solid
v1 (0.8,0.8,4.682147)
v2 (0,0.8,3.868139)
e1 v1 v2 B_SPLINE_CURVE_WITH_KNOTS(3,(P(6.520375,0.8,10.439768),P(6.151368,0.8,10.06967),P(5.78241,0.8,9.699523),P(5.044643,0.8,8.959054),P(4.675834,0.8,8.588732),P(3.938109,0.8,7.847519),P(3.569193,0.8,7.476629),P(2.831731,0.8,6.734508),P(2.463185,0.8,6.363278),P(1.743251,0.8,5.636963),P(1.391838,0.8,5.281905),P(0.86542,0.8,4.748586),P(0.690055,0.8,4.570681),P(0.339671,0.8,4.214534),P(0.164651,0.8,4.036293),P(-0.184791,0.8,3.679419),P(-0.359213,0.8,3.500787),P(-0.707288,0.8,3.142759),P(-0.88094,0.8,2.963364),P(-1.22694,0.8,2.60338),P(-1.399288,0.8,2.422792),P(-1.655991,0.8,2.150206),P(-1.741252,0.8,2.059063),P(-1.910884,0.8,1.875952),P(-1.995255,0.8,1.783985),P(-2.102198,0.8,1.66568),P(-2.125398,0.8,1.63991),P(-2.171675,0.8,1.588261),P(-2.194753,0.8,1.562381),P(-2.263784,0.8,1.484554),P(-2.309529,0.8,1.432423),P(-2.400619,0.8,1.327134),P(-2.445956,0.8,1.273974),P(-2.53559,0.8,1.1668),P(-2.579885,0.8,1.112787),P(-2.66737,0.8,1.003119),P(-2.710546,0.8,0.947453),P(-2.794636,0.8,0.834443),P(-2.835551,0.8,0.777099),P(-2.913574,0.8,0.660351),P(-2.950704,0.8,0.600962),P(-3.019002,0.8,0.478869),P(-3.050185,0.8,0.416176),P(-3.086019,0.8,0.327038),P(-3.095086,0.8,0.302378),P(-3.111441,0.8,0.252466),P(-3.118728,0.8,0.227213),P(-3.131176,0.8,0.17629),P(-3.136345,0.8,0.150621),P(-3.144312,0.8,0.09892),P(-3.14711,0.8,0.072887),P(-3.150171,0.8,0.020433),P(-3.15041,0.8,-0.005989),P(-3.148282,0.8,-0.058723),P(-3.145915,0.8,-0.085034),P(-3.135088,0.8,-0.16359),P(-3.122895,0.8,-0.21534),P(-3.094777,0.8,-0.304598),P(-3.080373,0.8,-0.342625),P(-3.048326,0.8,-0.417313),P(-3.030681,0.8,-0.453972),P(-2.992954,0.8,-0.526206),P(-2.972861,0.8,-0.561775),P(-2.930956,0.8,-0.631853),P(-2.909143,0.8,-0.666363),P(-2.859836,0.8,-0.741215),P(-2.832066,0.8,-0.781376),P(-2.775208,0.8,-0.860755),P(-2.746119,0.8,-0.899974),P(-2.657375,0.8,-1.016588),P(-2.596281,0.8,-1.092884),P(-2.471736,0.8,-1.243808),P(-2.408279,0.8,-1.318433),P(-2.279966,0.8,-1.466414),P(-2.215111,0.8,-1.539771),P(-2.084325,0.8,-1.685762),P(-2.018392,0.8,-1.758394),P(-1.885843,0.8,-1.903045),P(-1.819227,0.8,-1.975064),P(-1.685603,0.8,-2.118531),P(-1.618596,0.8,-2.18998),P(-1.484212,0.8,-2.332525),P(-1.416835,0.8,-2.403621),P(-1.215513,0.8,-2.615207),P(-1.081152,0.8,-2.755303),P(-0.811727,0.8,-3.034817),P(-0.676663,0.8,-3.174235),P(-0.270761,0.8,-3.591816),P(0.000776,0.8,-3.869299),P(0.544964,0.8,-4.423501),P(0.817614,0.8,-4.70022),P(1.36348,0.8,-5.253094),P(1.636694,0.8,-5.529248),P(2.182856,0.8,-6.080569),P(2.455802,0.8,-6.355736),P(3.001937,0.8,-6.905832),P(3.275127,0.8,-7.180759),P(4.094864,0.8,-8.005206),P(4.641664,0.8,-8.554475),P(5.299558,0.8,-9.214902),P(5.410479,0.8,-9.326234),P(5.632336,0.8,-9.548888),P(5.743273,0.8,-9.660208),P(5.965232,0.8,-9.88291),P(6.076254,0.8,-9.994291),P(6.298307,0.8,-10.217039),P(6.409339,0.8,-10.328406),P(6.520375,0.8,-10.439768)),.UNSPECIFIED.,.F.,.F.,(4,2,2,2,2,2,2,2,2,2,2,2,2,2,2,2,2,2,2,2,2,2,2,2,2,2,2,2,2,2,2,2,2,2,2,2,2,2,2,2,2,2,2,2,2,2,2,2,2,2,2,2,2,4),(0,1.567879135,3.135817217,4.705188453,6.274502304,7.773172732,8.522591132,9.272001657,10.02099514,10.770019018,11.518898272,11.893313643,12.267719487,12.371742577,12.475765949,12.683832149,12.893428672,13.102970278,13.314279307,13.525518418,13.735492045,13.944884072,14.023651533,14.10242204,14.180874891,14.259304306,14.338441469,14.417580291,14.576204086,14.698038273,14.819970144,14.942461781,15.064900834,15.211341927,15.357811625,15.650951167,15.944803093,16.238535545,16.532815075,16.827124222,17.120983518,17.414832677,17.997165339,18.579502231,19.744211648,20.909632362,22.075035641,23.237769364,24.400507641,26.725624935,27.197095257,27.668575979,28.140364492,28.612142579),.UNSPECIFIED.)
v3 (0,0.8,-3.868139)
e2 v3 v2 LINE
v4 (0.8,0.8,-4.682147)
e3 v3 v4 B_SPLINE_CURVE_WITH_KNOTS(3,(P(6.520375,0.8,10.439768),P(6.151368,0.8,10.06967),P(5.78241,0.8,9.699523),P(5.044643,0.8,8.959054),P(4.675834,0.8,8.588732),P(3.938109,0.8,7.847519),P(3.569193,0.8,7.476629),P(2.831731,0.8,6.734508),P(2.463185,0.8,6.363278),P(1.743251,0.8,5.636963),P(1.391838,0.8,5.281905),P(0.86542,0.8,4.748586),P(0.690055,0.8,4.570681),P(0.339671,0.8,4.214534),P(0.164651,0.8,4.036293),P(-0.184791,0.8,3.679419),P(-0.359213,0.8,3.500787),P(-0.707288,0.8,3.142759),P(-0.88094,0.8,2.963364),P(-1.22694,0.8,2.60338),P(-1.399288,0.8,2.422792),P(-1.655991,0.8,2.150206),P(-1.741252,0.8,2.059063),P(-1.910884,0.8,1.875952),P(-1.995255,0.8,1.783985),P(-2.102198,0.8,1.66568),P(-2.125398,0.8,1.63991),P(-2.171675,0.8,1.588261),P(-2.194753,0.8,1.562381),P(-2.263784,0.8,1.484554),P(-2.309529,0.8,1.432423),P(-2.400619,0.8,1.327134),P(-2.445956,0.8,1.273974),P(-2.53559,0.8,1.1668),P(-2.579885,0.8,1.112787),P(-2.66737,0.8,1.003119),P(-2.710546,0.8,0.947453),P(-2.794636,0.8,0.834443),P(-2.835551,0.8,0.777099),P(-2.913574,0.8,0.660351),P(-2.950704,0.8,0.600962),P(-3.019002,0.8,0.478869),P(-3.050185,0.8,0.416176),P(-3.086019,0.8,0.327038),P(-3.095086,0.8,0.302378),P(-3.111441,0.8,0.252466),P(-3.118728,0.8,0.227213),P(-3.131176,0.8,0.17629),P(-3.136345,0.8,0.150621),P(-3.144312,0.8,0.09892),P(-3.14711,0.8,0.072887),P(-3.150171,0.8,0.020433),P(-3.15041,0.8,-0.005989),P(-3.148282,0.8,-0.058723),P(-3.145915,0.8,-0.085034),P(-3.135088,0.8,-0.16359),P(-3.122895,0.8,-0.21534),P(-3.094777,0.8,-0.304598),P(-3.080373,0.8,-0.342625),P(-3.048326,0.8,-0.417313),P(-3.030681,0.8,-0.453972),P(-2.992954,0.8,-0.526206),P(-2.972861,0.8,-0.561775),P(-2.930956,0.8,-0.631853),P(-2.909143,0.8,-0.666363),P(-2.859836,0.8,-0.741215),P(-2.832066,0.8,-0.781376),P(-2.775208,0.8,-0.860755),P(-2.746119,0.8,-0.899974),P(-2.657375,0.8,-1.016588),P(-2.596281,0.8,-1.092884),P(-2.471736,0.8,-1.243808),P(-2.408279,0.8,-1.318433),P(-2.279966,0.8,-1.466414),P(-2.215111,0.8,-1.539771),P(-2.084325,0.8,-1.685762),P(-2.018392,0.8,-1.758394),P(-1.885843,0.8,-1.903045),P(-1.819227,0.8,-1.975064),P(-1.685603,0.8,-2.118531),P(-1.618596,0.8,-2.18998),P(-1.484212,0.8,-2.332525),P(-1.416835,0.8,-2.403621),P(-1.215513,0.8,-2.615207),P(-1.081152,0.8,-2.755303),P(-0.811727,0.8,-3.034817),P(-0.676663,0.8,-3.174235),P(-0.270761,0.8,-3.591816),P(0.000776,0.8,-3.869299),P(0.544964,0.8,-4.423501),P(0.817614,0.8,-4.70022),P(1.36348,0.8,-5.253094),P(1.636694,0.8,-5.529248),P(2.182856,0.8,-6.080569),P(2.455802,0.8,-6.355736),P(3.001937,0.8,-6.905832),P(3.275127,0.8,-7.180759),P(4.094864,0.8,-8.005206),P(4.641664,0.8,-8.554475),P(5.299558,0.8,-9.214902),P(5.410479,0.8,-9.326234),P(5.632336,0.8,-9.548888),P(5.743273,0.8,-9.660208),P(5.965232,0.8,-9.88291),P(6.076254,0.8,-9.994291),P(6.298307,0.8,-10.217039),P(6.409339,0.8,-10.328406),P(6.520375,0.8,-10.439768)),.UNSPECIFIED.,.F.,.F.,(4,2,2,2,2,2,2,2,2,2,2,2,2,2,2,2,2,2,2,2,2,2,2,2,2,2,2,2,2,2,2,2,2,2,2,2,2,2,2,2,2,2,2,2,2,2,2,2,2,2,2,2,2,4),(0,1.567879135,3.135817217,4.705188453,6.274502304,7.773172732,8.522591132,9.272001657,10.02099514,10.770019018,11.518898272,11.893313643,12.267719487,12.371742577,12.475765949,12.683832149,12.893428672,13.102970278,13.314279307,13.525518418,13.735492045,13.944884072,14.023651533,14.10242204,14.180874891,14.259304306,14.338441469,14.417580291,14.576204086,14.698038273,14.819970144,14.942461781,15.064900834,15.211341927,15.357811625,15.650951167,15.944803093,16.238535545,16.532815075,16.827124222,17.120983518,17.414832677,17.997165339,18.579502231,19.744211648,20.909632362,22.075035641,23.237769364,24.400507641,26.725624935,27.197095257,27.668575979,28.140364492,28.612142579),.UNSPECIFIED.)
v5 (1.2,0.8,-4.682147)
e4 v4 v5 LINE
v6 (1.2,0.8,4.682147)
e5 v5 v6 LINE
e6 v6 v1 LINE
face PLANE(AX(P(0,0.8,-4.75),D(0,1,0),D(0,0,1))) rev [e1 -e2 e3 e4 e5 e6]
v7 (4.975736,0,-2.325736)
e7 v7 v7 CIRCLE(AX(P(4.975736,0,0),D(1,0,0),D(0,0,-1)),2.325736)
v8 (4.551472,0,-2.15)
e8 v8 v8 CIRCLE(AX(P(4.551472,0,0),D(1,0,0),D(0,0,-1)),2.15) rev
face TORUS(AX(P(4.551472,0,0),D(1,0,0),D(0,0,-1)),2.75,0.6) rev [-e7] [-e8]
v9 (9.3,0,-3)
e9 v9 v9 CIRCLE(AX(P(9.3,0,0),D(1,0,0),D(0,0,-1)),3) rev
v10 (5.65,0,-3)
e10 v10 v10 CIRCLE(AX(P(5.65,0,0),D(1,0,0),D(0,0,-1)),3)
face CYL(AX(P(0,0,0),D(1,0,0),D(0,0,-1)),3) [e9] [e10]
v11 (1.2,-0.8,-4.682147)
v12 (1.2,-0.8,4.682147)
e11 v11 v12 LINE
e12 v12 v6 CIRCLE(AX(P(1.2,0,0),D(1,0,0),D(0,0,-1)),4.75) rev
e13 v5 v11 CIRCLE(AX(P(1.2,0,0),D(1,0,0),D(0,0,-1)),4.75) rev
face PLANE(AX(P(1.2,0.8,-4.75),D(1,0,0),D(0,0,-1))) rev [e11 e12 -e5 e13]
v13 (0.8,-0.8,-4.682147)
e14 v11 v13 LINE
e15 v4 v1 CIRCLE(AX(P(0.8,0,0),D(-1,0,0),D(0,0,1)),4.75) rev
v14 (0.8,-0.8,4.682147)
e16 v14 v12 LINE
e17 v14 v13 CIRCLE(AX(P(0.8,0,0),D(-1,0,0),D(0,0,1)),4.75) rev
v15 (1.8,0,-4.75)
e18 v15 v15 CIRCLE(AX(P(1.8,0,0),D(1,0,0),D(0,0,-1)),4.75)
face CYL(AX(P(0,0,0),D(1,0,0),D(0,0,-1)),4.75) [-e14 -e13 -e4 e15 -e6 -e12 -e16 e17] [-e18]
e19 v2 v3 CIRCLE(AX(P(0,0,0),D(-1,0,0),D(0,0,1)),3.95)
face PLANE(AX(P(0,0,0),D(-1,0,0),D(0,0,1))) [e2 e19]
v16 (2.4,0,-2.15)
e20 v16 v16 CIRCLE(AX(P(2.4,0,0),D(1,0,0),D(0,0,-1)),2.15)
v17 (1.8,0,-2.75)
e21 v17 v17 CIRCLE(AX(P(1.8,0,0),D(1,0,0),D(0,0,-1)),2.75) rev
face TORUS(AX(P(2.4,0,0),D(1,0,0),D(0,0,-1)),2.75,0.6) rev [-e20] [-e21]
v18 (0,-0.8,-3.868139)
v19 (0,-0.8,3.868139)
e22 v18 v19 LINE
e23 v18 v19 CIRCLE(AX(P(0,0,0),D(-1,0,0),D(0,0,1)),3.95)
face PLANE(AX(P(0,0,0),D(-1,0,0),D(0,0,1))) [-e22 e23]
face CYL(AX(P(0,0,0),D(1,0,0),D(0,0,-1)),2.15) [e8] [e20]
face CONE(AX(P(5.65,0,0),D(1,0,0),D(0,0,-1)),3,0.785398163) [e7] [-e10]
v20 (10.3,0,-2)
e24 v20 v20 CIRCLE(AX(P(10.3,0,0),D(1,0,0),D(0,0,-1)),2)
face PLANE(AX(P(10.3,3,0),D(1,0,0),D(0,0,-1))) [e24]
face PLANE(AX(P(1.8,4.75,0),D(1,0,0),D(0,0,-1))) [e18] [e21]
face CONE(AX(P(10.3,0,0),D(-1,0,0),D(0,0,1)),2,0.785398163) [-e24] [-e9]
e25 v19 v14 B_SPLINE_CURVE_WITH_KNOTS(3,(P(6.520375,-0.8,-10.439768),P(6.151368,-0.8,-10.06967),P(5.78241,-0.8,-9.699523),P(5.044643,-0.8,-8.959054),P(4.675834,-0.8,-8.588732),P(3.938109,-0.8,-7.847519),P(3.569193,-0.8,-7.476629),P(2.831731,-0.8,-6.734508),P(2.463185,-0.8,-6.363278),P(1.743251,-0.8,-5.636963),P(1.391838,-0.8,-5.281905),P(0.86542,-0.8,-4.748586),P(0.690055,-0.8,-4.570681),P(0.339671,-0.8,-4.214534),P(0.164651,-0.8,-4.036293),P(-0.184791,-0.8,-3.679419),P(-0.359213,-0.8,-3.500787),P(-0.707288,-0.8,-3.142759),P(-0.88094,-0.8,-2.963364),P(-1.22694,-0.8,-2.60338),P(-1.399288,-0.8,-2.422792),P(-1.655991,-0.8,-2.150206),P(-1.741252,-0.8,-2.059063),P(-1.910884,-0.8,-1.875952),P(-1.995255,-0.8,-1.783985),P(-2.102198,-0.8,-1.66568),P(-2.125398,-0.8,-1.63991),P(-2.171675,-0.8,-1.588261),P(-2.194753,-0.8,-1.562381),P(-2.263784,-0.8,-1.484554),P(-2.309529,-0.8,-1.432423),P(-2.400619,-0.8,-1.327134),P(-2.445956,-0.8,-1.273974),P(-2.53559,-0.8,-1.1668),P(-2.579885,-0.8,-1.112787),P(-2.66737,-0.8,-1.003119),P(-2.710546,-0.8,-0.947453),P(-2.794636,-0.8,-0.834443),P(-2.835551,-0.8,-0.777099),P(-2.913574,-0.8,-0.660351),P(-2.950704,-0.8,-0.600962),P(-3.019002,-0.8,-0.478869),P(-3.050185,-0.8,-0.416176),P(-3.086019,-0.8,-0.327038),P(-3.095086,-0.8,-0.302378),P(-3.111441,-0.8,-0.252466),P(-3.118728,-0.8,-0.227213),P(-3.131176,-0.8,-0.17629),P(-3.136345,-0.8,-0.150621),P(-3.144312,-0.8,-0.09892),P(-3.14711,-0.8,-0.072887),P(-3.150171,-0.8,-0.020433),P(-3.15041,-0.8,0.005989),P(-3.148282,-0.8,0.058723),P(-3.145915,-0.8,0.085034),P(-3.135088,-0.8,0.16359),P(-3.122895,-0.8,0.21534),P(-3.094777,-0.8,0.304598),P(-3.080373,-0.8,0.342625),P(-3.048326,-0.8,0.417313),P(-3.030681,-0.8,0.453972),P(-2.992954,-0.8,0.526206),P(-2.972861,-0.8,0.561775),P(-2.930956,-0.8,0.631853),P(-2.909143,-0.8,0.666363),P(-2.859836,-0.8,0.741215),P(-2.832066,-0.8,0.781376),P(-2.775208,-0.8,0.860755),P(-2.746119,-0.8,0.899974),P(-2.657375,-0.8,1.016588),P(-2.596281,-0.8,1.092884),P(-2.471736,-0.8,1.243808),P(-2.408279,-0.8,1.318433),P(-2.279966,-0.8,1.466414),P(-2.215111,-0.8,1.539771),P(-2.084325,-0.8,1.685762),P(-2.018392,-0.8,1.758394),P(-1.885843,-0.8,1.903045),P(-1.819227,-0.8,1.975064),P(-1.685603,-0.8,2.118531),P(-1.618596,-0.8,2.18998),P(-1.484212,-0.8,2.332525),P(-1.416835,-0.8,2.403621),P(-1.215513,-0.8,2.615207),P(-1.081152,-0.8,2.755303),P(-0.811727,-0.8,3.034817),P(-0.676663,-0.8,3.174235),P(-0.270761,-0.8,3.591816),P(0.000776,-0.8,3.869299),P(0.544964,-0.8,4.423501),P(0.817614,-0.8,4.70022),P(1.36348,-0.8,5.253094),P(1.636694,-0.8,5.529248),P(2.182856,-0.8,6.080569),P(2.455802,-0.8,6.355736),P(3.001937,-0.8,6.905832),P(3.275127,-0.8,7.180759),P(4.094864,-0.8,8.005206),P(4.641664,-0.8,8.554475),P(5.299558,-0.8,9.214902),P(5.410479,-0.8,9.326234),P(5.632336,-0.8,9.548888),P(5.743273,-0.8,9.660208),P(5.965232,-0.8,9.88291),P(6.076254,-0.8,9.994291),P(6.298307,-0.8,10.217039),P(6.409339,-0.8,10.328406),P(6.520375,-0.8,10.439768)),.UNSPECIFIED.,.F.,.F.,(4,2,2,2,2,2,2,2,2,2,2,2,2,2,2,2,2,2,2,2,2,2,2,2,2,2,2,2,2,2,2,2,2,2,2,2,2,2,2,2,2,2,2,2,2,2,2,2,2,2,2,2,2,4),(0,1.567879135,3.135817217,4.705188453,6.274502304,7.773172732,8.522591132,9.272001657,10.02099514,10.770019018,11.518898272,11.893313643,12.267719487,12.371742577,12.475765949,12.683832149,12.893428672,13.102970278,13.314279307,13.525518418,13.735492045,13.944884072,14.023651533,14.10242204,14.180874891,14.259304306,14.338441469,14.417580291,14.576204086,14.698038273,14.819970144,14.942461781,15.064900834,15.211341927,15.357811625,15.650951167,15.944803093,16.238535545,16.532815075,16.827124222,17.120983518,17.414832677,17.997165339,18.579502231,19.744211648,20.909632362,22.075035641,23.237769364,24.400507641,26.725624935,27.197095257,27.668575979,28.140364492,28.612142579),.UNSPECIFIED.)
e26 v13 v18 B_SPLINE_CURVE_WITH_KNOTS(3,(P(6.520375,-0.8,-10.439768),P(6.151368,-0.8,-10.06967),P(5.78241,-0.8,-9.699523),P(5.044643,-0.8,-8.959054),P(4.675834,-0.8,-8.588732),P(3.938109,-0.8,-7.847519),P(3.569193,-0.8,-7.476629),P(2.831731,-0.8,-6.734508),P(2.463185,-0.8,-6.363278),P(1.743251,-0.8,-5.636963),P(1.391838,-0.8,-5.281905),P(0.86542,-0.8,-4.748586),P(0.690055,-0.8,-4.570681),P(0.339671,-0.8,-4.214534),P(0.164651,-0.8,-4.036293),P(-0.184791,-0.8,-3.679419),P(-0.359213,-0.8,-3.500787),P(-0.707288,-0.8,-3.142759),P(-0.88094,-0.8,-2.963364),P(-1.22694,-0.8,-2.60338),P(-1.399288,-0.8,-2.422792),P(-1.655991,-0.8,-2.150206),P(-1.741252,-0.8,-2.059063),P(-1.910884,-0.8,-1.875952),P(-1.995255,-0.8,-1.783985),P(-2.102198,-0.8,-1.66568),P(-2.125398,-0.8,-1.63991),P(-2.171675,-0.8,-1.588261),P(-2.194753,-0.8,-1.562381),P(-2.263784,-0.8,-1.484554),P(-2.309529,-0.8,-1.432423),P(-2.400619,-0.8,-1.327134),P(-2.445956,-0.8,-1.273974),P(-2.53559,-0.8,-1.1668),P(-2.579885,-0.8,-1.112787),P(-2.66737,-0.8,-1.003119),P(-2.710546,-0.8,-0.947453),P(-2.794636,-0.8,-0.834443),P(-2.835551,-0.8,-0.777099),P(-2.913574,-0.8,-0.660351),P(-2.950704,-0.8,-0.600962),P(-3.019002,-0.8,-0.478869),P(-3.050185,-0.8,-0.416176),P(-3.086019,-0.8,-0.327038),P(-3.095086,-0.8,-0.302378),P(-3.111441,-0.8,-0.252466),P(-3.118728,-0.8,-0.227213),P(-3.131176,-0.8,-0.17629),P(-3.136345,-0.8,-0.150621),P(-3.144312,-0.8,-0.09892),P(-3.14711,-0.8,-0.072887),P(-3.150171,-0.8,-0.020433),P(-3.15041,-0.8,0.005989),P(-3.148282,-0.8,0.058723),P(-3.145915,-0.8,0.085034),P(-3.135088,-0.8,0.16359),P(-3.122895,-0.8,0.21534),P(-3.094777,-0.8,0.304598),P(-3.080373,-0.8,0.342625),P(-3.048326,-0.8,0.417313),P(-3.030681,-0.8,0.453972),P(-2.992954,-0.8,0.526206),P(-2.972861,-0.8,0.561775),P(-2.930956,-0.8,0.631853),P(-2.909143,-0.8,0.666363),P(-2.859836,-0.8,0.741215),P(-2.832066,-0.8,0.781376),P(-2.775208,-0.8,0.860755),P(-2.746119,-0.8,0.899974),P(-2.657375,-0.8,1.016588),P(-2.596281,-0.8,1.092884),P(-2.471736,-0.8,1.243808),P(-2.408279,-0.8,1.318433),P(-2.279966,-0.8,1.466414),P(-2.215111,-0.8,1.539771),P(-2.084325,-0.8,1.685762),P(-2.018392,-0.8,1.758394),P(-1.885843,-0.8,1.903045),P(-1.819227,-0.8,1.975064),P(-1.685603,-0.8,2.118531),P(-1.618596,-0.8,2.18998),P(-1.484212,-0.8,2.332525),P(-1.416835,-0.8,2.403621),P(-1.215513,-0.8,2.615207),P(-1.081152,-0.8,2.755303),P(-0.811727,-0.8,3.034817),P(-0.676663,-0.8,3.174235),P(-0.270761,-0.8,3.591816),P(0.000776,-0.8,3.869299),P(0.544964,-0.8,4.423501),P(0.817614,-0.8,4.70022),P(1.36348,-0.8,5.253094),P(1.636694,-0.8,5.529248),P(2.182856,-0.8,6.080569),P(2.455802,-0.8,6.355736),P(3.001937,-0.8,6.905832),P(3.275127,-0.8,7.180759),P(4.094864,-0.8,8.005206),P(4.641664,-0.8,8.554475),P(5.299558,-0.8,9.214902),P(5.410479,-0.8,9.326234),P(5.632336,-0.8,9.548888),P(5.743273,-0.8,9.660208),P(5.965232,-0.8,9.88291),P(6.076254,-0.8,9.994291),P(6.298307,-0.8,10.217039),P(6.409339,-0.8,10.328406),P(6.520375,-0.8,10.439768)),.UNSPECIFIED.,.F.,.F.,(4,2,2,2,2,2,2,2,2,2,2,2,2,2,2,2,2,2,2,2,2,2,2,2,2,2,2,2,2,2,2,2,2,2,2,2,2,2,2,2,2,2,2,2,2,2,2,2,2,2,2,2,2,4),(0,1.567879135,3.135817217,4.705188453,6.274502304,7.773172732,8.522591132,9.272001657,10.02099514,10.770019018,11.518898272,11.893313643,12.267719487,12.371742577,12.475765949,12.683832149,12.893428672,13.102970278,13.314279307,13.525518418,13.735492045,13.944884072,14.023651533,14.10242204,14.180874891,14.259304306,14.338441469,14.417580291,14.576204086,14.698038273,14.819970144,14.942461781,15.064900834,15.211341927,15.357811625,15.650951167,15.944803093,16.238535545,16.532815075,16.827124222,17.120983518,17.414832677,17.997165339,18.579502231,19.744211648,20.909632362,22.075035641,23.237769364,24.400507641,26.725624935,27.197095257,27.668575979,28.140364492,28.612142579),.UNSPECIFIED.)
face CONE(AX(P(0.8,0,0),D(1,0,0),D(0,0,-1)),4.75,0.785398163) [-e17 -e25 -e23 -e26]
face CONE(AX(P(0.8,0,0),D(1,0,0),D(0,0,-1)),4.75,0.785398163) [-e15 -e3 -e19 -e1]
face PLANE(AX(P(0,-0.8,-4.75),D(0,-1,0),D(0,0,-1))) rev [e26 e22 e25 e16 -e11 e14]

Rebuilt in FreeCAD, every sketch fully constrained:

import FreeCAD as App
import Part
import Sketcher
from FreeCAD import Vector
Q = App.Units.Quantity


def edges_at(feature, points):
    """Names of the edges that pass closest to the given points."""
    edges = feature.Shape.Edges
    near = lambda p: min(range(len(edges)), key=lambda i: edges[i].distToShape(Part.Vertex(*p))[0])
    return sorted({f"Edge{near(p) + 1}" for p in points})

doc = App.newDocument("Part")
params = doc.addObject("Spreadsheet::Sheet", "Params")
for row, (alias, value) in enumerate([
    ("sketch1_width", "3 mm"),
    ("sketch1_width2", "10.3 mm"),
    ("sketch1_width3", "1.8 mm"),
    ("sketch1_height", "2.6 mm"),
    ("sketch1_width4", "4.65 mm"),
    ("revolution_angle", "360 deg"),
    ("chamfer_size", "1 mm"),
    ("fillet_radius", "0.6 mm"),
    ("chamfer2_size", "0.8 mm"),
    ("sketch2_width", "1.2 mm"),
    ("sketch2_height", "1.6 mm"),
], start=1):
    params.set(f"A{row}", alias)
    params.set(f"B{row}", "=" + value)
    params.setAlias(f"B{row}", alias)

body = doc.addObject("PartDesign::Body", "Body")

sketch1 = body.newObject("Sketcher::SketchObject", "Sketch")
sketch1.AttachmentSupport = (doc.getObject("XY_Plane"), [""])
sketch1.MapMode = "FlatFace"
sketch1.addGeometry([
    Part.LineSegment(Vector(0, 4.8, 0), Vector(0, 0, 0)),
    Part.LineSegment(Vector(0, 0, 0), Vector(10.3, 0, 0)),
    Part.LineSegment(Vector(10.3, 0, 0), Vector(10.3, 3, 0)),
    Part.LineSegment(Vector(10.3, 3, 0), Vector(5.7, 3, 0)),
    Part.LineSegment(Vector(5.7, 3, 0), Vector(4.8, 2.1, 0)),
    Part.LineSegment(Vector(4.8, 2.1, 0), Vector(1.8, 2.1, 0)),
    Part.LineSegment(Vector(1.8, 2.1, 0), Vector(1.8, 4.8, 0)),
    Part.LineSegment(Vector(1.8, 4.8, 0), Vector(0, 4.8, 0)),
], False)
sketch1.addConstraint([
    Sketcher.Constraint("Coincident", 0, 2, 1, 1),
    Sketcher.Constraint("Coincident", 1, 2, 2, 1),
    Sketcher.Constraint("Coincident", 2, 2, 3, 1),
    Sketcher.Constraint("Coincident", 3, 2, 4, 1),
    Sketcher.Constraint("Coincident", 4, 2, 5, 1),
    Sketcher.Constraint("Coincident", 5, 2, 6, 1),
    Sketcher.Constraint("Coincident", 6, 2, 7, 1),
    Sketcher.Constraint("Coincident", 7, 2, 0, 1),
    Sketcher.Constraint("Vertical", 0),
    Sketcher.Constraint("Horizontal", 1),
    Sketcher.Constraint("Vertical", 2),
    Sketcher.Constraint("Horizontal", 3),
    Sketcher.Constraint("Horizontal", 5),
    Sketcher.Constraint("Vertical", 6),
    Sketcher.Constraint("Horizontal", 7),
    Sketcher.Constraint("Coincident", 0, 2, -1, 1),
    Sketcher.Constraint("Equal", 5, 2),
    Sketcher.Constraint("DistanceX", 5, 2, 5, 1, 3.0),
    Sketcher.Constraint("Angle", 4, Q("-135 deg")),
    Sketcher.Constraint("DistanceX", 1, 1, 1, 2, 10.3),
    Sketcher.Constraint("DistanceX", 7, 2, 7, 1, 1.8),
    Sketcher.Constraint("DistanceY", 6, 1, 6, 2, 2.6),
    Sketcher.Constraint("DistanceX", 3, 2, 3, 1, 4.65),
])
sketch1.setExpression("Constraints[17]", "Params.sketch1_width")
sketch1.setExpression("Constraints[19]", "Params.sketch1_width2")
sketch1.setExpression("Constraints[20]", "Params.sketch1_width3")
sketch1.setExpression("Constraints[21]", "Params.sketch1_height")
sketch1.setExpression("Constraints[22]", "Params.sketch1_width4")
revolution = body.newObject("PartDesign::Revolution", "Revolution")
revolution.Profile = sketch1
revolution.ReferenceAxis = (sketch1, ["H_Axis"])
revolution.setExpression("Angle", "Params.revolution_angle")
doc.recompute()

chamfer = body.newObject("PartDesign::Chamfer", "Chamfer")
chamfer.Base = (revolution, edges_at(revolution, [(10.3, -3, 0)]))
chamfer.setExpression("Size", "Params.chamfer_size")
doc.recompute()

fillet = body.newObject("PartDesign::Fillet", "Fillet")
fillet.Base = (chamfer, edges_at(chamfer, [(4.8, -2.15, 0), (1.8, -2.15, 0)]))
fillet.setExpression("Radius", "Params.fillet_radius")
doc.recompute()

chamfer2 = body.newObject("PartDesign::Chamfer", "Chamfer001")
chamfer2.Base = (fillet, edges_at(fillet, [(0, -4.75, 0)]))
chamfer2.setExpression("Size", "Params.chamfer2_size")

sketch2 = body.newObject("Sketcher::SketchObject", "Sketch001")
sketch2.AttachmentSupport = (doc.getObject("XY_Plane"), [""])
sketch2.MapMode = "FlatFace"
sketch2.addGeometry([
    Part.LineSegment(Vector(0, 0.8, 0), Vector(0, -0.8, 0)),
    Part.LineSegment(Vector(0, -0.8, 0), Vector(1.2, -0.8, 0)),
    Part.LineSegment(Vector(1.2, -0.8, 0), Vector(1.2, 0.8, 0)),
    Part.LineSegment(Vector(1.2, 0.8, 0), Vector(0, 0.8, 0)),
], False)
sketch2.addConstraint([
    Sketcher.Constraint("Coincident", 0, 2, 1, 1),
    Sketcher.Constraint("Coincident", 1, 2, 2, 1),
    Sketcher.Constraint("Coincident", 2, 2, 3, 1),
    Sketcher.Constraint("Coincident", 3, 2, 0, 1),
    Sketcher.Constraint("Vertical", 0),
    Sketcher.Constraint("Horizontal", 1),
    Sketcher.Constraint("Vertical", 2),
    Sketcher.Constraint("Horizontal", 3),
    Sketcher.Constraint("Symmetric", 0, 2, 3, 2, -1, 1),
    Sketcher.Constraint("DistanceX", 1, 1, 1, 2, 1.2),
    Sketcher.Constraint("DistanceY", 0, 2, 0, 1, 1.6),
])
sketch2.setExpression("Constraints[9]", "Params.sketch2_width")
sketch2.setExpression("Constraints[10]", "Params.sketch2_height")
pocket1 = body.newObject("PartDesign::Pocket", "Pocket")
pocket1.Profile = sketch2
pocket1.Type = "ThroughAll"
pocket1.Midplane = True

doc.recompute()
